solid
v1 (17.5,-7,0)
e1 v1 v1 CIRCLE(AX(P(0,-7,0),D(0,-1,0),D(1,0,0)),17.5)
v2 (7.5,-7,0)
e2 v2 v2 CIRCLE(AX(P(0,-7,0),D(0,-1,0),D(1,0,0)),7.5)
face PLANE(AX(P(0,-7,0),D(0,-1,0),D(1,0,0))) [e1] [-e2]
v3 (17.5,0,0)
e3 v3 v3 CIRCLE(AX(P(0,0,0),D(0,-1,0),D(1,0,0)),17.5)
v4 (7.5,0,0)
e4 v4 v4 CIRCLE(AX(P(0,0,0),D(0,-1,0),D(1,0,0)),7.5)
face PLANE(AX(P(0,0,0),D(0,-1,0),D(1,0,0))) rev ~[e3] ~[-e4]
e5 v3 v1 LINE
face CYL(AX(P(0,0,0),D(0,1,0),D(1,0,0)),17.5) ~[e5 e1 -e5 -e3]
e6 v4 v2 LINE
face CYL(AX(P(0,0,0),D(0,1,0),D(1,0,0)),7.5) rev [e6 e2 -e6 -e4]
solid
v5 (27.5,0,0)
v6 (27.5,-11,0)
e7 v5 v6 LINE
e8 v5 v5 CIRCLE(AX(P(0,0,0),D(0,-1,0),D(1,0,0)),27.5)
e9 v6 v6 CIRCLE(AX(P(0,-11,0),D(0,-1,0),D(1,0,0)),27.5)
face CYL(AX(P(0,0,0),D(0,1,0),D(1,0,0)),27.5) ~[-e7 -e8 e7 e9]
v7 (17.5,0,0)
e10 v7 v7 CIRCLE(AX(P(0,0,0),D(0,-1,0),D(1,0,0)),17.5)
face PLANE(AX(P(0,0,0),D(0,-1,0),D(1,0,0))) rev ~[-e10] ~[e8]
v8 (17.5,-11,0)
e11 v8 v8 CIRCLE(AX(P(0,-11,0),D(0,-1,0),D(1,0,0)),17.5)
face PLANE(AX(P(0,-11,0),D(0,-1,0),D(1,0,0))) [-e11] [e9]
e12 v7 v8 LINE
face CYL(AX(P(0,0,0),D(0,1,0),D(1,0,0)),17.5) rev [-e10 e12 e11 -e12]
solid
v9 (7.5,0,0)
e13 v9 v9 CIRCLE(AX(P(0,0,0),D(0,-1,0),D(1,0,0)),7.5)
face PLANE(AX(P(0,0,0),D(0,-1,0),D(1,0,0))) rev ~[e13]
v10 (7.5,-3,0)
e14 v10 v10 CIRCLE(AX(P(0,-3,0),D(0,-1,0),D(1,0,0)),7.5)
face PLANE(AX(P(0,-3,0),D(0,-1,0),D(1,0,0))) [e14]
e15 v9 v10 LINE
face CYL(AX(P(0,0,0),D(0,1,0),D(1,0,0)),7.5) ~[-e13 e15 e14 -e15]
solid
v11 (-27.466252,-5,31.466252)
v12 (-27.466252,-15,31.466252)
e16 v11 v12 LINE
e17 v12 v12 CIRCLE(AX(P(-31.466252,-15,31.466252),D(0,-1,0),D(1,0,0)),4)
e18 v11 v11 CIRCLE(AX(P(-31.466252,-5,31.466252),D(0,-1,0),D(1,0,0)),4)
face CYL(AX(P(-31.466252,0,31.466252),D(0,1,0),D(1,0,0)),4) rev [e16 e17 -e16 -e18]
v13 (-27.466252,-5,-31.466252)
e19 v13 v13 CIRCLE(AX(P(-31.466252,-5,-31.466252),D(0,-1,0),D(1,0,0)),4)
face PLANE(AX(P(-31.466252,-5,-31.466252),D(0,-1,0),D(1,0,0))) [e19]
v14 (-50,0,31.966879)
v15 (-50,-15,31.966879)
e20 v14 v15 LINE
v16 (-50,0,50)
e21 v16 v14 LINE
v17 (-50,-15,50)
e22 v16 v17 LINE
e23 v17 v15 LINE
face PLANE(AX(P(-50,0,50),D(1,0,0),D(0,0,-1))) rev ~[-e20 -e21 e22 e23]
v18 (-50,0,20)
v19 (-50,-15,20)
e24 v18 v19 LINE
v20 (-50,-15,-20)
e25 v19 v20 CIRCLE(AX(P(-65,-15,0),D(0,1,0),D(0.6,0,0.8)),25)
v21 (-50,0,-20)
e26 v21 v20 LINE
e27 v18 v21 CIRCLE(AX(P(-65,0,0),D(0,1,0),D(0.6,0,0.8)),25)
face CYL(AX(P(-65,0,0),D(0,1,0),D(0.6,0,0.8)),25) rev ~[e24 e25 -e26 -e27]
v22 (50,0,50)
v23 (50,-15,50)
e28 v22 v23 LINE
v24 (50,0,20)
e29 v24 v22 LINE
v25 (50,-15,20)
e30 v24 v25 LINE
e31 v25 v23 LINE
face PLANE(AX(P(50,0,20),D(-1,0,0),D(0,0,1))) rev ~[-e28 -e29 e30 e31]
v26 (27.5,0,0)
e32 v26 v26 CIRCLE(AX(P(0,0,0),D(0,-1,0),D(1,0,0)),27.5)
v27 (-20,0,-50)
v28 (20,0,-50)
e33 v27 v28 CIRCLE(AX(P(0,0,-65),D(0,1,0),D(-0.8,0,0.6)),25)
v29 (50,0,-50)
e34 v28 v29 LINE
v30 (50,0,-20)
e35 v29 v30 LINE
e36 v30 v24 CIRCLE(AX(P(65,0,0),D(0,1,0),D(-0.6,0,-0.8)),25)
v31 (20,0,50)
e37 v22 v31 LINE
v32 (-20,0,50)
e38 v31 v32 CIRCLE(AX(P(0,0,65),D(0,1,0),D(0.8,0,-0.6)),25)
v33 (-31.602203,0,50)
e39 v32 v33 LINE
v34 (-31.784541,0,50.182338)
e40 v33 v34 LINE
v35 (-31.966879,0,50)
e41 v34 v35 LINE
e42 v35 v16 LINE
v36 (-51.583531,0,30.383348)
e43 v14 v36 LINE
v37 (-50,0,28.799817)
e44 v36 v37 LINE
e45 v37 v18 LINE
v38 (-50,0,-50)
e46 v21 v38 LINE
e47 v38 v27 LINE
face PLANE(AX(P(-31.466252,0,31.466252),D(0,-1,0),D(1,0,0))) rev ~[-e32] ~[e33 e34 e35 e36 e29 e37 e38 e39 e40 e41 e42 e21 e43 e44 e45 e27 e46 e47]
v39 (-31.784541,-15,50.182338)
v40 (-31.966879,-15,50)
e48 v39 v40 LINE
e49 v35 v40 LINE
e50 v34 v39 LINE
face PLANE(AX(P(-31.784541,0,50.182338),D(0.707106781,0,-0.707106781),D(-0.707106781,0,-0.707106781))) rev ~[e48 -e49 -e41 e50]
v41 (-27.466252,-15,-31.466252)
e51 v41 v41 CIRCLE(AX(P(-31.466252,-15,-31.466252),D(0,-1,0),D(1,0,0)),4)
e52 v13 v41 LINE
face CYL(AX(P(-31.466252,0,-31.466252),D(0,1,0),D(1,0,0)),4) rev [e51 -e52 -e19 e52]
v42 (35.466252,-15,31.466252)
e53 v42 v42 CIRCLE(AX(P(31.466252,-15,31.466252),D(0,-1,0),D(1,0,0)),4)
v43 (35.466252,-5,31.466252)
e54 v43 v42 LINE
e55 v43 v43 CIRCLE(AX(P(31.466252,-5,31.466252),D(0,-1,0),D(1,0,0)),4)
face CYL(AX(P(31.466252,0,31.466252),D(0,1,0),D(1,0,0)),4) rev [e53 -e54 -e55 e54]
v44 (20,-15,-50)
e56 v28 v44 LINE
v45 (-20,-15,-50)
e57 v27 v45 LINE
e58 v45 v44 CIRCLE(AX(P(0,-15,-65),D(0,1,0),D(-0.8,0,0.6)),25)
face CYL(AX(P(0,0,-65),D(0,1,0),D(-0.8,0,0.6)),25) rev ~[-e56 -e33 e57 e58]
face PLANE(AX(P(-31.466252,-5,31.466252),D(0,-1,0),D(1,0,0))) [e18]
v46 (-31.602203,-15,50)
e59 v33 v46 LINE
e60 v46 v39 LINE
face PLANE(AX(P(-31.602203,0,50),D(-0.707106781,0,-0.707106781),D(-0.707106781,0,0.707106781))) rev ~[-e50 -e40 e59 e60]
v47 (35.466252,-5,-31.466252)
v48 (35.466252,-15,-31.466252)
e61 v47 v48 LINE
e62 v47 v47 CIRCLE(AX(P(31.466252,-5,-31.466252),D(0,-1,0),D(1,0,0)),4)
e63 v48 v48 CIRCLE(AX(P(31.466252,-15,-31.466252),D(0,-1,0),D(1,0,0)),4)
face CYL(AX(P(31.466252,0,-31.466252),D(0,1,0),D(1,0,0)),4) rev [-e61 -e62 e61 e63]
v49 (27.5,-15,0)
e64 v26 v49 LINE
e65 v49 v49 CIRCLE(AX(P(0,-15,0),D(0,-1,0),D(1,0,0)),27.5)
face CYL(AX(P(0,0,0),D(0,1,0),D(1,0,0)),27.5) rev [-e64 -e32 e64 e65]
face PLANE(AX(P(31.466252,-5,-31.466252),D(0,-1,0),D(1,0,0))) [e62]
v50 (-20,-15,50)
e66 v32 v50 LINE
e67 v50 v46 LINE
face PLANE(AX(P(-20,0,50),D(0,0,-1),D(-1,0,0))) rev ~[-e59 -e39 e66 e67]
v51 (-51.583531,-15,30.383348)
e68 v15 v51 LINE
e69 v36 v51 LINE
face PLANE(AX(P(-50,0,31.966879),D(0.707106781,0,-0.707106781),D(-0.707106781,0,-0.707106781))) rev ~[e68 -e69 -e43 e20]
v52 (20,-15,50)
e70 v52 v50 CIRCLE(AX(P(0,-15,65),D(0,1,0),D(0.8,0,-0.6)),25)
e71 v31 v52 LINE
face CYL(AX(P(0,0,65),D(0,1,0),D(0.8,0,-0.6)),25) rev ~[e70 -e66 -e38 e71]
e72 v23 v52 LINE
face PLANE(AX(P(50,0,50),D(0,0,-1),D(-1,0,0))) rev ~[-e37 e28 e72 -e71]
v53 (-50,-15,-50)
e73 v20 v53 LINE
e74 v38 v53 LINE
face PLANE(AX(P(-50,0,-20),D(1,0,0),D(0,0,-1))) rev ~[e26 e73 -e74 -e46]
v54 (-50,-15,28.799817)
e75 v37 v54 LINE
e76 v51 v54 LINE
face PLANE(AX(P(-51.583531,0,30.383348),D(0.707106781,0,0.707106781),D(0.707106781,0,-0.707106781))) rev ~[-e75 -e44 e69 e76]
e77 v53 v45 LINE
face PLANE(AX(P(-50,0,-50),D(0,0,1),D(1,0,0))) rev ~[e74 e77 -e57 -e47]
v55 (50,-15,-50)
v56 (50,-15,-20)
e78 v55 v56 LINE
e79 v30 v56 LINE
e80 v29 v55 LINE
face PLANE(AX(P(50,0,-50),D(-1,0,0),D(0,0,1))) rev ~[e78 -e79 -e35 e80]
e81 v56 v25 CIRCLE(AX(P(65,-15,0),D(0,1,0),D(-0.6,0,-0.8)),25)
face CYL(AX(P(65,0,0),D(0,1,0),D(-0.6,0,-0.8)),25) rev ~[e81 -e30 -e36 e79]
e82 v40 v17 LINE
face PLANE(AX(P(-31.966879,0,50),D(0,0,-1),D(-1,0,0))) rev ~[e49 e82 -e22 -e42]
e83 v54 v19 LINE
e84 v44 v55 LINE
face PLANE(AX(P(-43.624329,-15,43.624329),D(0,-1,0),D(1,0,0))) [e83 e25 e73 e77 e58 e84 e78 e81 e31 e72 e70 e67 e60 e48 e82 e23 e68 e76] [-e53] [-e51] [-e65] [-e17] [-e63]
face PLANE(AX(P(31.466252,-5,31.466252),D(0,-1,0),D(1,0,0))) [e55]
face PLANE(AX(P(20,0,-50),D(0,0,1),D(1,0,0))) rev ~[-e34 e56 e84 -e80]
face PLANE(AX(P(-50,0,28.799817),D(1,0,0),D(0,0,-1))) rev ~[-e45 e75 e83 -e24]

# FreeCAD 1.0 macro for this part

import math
import FreeCAD as App
import Part
import Sketcher

V = App.Vector

doc = App.newDocument("Part")
body = doc.addObject("PartDesign::Body", "Body")

# Sketch on XZ plane
sketch1 = body.newObject("Sketcher::SketchObject", "Sketch")
sketch1.AttachmentSupport = (doc.getObject("XZ_Plane"), [""])
sketch1.MapMode = "FlatFace"
sketch1.addGeometry([
    Part.LineSegment(V(-50, 50, 0), V(-50, 31.97, 0)),  # 0
    Part.LineSegment(V(-50, 31.97, 0), V(-51.58, 30.38, 0)),  # 1
    Part.LineSegment(V(-51.58, 30.38, 0), V(-50, 28.8, 0)),  # 2
    Part.LineSegment(V(-50, 28.8, 0), V(-50, 20, 0)),  # 3
    Part.ArcOfCircle(Part.Circle(V(-65, 0, 0), V(0, 0, 1), 25), math.radians(-53), math.radians(53)),  # 4
    Part.LineSegment(V(-50, -20, 0), V(-50, -50, 0)),  # 5
    Part.LineSegment(V(-50, -50, 0), V(-20, -50, 0)),  # 6
    Part.ArcOfCircle(Part.Circle(V(0, -65, 0), V(0, 0, 1), 25), math.radians(37), math.radians(143)),  # 7
    Part.LineSegment(V(20, -50, 0), V(50, -50, 0)),  # 8
    Part.LineSegment(V(50, -50, 0), V(50, -20, 0)),  # 9
    Part.ArcOfCircle(Part.Circle(V(65, 0, 0), V(0, 0, 1), 25), math.radians(127), math.radians(233)),  # 10
    Part.LineSegment(V(50, 20, 0), V(50, 50, 0)),  # 11
    Part.LineSegment(V(50, 50, 0), V(20, 50, 0)),  # 12
    Part.ArcOfCircle(Part.Circle(V(0, 65, 0), V(0, 0, 1), 25), math.radians(-143), math.radians(-37)),  # 13
    Part.LineSegment(V(-20, 50, 0), V(-31.6, 50, 0)),  # 14
    Part.LineSegment(V(-31.6, 50, 0), V(-31.78, 50.18, 0)),  # 15
    Part.LineSegment(V(-31.78, 50.18, 0), V(-31.97, 50, 0)),  # 16
    Part.LineSegment(V(-31.97, 50, 0), V(-50, 50, 0)),  # 17
    Part.Circle(V(-31.47, -31.47, 0), V(0, 0, 1), 4),  # 18
    Part.Circle(V(31.47, -31.47, 0), V(0, 0, 1), 4),  # 19
    Part.Circle(V(0, 0, 0), V(0, 0, 1), 27.5),  # 20
    Part.Circle(V(-31.47, 31.47, 0), V(0, 0, 1), 4),  # 21
    Part.Circle(V(31.47, 31.47, 0), V(0, 0, 1), 4),  # 22
], False)
sketch1.addConstraint([
    Sketcher.Constraint("Coincident", 0, 2, 1, 1),
    Sketcher.Constraint("Coincident", 1, 2, 2, 1),
    Sketcher.Constraint("Coincident", 2, 2, 3, 1),
    Sketcher.Constraint("Coincident", 3, 2, 4, 2),
    Sketcher.Constraint("Coincident", 4, 1, 5, 1),
    Sketcher.Constraint("Coincident", 5, 2, 6, 1),
    Sketcher.Constraint("Coincident", 6, 2, 7, 2),
    Sketcher.Constraint("Coincident", 7, 1, 8, 1),
    Sketcher.Constraint("Coincident", 8, 2, 9, 1),
    Sketcher.Constraint("Coincident", 9, 2, 10, 2),
    Sketcher.Constraint("Coincident", 10, 1, 11, 1),
    Sketcher.Constraint("Coincident", 11, 2, 12, 1),
    Sketcher.Constraint("Coincident", 12, 2, 13, 2),
    Sketcher.Constraint("Coincident", 13, 1, 14, 1),
    Sketcher.Constraint("Coincident", 14, 2, 15, 1),
    Sketcher.Constraint("Coincident", 15, 2, 16, 1),
    Sketcher.Constraint("Coincident", 16, 2, 17, 1),
    Sketcher.Constraint("Coincident", 17, 2, 0, 1),
    Sketcher.Constraint("Vertical", 0),
    Sketcher.Constraint("Vertical", 3),
    Sketcher.Constraint("Vertical", 5),
    Sketcher.Constraint("Horizontal", 6),
    Sketcher.Constraint("Horizontal", 8),
    Sketcher.Constraint("Vertical", 9),
    Sketcher.Constraint("Vertical", 11),
    Sketcher.Constraint("Horizontal", 12),
    Sketcher.Constraint("Horizontal", 14),
    Sketcher.Constraint("Horizontal", 17),
    Sketcher.Constraint("Coincident", 20, 3, -1, 1),
    Sketcher.Constraint("Equal", 4, 7),
    Sketcher.Constraint("Equal", 7, 10),
    Sketcher.Constraint("Equal", 10, 13),
    Sketcher.Constraint("Equal", 18, 19),
    Sketcher.Constraint("Equal", 19, 21),
    Sketcher.Constraint("Equal", 21, 22),
    Sketcher.Constraint("Symmetric", 4, 3, 10, 3, -1, 1),
    Sketcher.Constraint("Symmetric", 7, 3, 13, 3, -1, 1),
    Sketcher.Constraint("Symmetric", 19, 3, 21, 3, -1, 1),
    Sketcher.Constraint("Symmetric", 18, 3, 22, 3, -1, 1),
    Sketcher.Constraint("Symmetric", 5, 2, 11, 2, -1, 1),
    Sketcher.Constraint("Symmetric", 8, 2, 17, 2, -1, 1),
    Sketcher.Constraint("Symmetric", 18, 3, 19, 3, -2),
    Sketcher.Constraint("Symmetric", 6, 2, 7, 1, -2),
    Sketcher.Constraint("Symmetric", 4, 1, 9, 2, -2),
    Sketcher.Constraint("Perpendicular", 1, 2),
    Sketcher.Constraint("Parallel", 2, 15),
    Sketcher.Constraint("Perpendicular", 15, 16),
    Sketcher.Constraint("Horizontal", 3, 2, 10, 1),
    Sketcher.Constraint("Horizontal", 12, 2, 13, 1),
    Sketcher.Constraint("Equal", 17, 0),
    Sketcher.Constraint("Equal", 12, 5),
    Sketcher.Constraint("Equal", 1, 2),
    Sketcher.Constraint("Diameter", 18, 8.0),
    Sketcher.Constraint("Diameter", 20, 55.0),
    Sketcher.Constraint("Radius", 4, 25.0),
    Sketcher.Constraint("DistanceX", 6, 1, 6, 2, 30.0),
    Sketcher.Constraint("DistanceX", 4, 3, -1, 1, 65.0),
    Sketcher.Constraint("DistanceY", 7, 3, -1, 1, 65.0),
    Sketcher.Constraint("DistanceX", 17, 2, 17, 1, 18.033121),
    Sketcher.Constraint("Distance", 1, 2.239451),
    Sketcher.Constraint("DistanceX", 14, 2, 14, 1, 11.602203),
    Sketcher.Constraint("DistanceX", 18, 3, -1, 1, 31.466252),
    Sketcher.Constraint("DistanceY", 18, 3, -1, 1, 31.466252),
])
pad1 = body.newObject("PartDesign::Pad", "Pad")
pad1.Profile = sketch1
pad1.Length = 15

# Sketch on XZ plane
sketch2 = body.newObject("Sketcher::SketchObject", "Sketch001")
sketch2.AttachmentSupport = (doc.getObject("XZ_Plane"), [""])
sketch2.MapMode = "FlatFace"
sketch2.addGeometry([
    Part.Circle(V(-31.5, 31.5, 0), V(0, 0, 1), 4),
    Part.Circle(V(31.5, 31.5, 0), V(0, 0, 1), 4),
    Part.Circle(V(31.5, -31.5, 0), V(0, 0, 1), 4),
    Part.Circle(V(-31.5, -31.5, 0), V(0, 0, 1), 4),
], False)
sketch2.addConstraint([
    Sketcher.Constraint("Equal", 0, 1),
    Sketcher.Constraint("Equal", 1, 2),
    Sketcher.Constraint("Equal", 2, 3),
    Sketcher.Constraint("Symmetric", 0, 3, 2, 3, -1, 1),
    Sketcher.Constraint("Symmetric", 1, 3, 3, 3, -1, 1),
    Sketcher.Constraint("Symmetric", 0, 3, 1, 3, -2),
    Sketcher.Constraint("Diameter", 0, 8.0),
    Sketcher.Constraint("DistanceX", 0, 3, -1, 1, 31.466252),
    Sketcher.Constraint("DistanceY", -1, 1, 0, 3, 31.466252),
])
pad2 = body.newObject("PartDesign::Pad", "Pad001")
pad2.Profile = sketch2
pad2.Length = 5
body2 = doc.addObject("PartDesign::Body", "Body001")

# Sketch on XZ plane
sketch3 = body2.newObject("Sketcher::SketchObject", "Sketch002")
sketch3.AttachmentSupport = (doc.getObject("XZ_Plane001"), [""])
sketch3.MapMode = "FlatFace"
sketch3.addGeometry([
    Part.Circle(V(0, 0, 0), V(0, 0, 1), 28),
    Part.Circle(V(0, 0, 0), V(0, 0, 1), 18),
], False)
sketch3.addConstraint([
    Sketcher.Constraint("Coincident", 0, 3, -1, 1),
    Sketcher.Constraint("Coincident", 1, 3, -1, 1),
    Sketcher.Constraint("Diameter", 0, 55.0),
    Sketcher.Constraint("Diameter", 1, 35.0),
])
pad3 = body2.newObject("PartDesign::Pad", "Pad002")
pad3.Profile = sketch3
pad3.Length = 11
body3 = doc.addObject("PartDesign::Body", "Body002")

# Sketch on XZ plane
sketch4 = body3.newObject("Sketcher::SketchObject", "Sketch003")
sketch4.AttachmentSupport = (doc.getObject("XZ_Plane002"), [""])
sketch4.MapMode = "FlatFace"
sketch4.addGeometry([
    Part.Circle(V(0, 0, 0), V(0, 0, 1), 18),
    Part.Circle(V(0, 0, 0), V(0, 0, 1), 8),
], False)
sketch4.addConstraint([
    Sketcher.Constraint("Coincident", 0, 3, -1, 1),
    Sketcher.Constraint("Coincident", 1, 3, -1, 1),
    Sketcher.Constraint("Diameter", 0, 35.0),
    Sketcher.Constraint("Diameter", 1, 15.0),
])
pad4 = body3.newObject("PartDesign::Pad", "Pad003")
pad4.Profile = sketch4
pad4.Length = 7
body4 = doc.addObject("PartDesign::Body", "Body003")

# Sketch on XZ plane
sketch5 = body4.newObject("Sketcher::SketchObject", "Sketch004")
sketch5.AttachmentSupport = (doc.getObject("XZ_Plane003"), [""])
sketch5.MapMode = "FlatFace"
sketch5.addGeometry(Part.Circle(V(0, 0, 0), V(0, 0, 1), 8), False)
sketch5.addConstraint([
    Sketcher.Constraint("Coincident", 0, 3, -1, 1),
    Sketcher.Constraint("Diameter", 0, 15.0),
])
pad5 = body4.newObject("PartDesign::Pad", "Pad004")
pad5.Profile = sketch5
pad5.Length = 3

doc.recompute()
